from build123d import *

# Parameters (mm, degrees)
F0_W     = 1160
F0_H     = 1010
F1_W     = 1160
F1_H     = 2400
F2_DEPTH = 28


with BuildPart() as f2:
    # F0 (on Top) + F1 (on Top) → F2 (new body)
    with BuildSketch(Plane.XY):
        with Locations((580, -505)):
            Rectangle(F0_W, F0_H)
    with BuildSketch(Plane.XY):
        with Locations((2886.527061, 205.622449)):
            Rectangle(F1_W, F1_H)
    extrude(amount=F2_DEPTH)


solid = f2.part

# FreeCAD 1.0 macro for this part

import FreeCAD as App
import Part
import Sketcher
from FreeCAD import Vector
Q = App.Units.Quantity

doc = App.newDocument("Part")
body = doc.addObject("PartDesign::Body", "Body")
body.AllowCompound = True

# Sketch on XY plane
sketch1 = body.newObject("Sketcher::SketchObject", "Sketch")
sketch1.AttachmentSupport = (doc.getObject("XY_Plane"), [""])
sketch1.MapMode = "FlatFace"
sketch1.addGeometry([
    Part.LineSegment(Vector(0, 0, 0), Vector(0, -1010, 0)),  # 0
    Part.LineSegment(Vector(0, -1010, 0), Vector(1160, -1010, 0)),  # 1
    Part.LineSegment(Vector(1160, -1010, 0), Vector(1160, 0, 0)),  # 2
    Part.LineSegment(Vector(1160, 0, 0), Vector(0, 0, 0)),  # 3
    Part.LineSegment(Vector(2307, 1406, 0), Vector(2307, -994, 0)),  # 4
    Part.LineSegment(Vector(2307, -994, 0), Vector(3467, -994, 0)),  # 5
    Part.LineSegment(Vector(3467, -994, 0), Vector(3467, 1406, 0)),  # 6
    Part.LineSegment(Vector(3467, 1406, 0), Vector(2307, 1406, 0)),  # 7
], False)
sketch1.addConstraint([
    Sketcher.Constraint("Coincident", 0, 2, 1, 1),
    Sketcher.Constraint("Coincident", 1, 2, 2, 1),
    Sketcher.Constraint("Coincident", 2, 2, 3, 1),
    Sketcher.Constraint("Coincident", 3, 2, 0, 1),
    Sketcher.Constraint("Coincident", 4, 2, 5, 1),
    Sketcher.Constraint("Coincident", 5, 2, 6, 1),
    Sketcher.Constraint("Coincident", 6, 2, 7, 1),
    Sketcher.Constraint("Coincident", 7, 2, 4, 1),
    Sketcher.Constraint("Vertical", 0),
    Sketcher.Constraint("Horizontal", 1),
    Sketcher.Constraint("Vertical", 2),
    Sketcher.Constraint("Horizontal", 3),
    Sketcher.Constraint("Vertical", 4),
    Sketcher.Constraint("Horizontal", 5),
    Sketcher.Constraint("Vertical", 6),
    Sketcher.Constraint("Horizontal", 7),
    Sketcher.Constraint("Coincident", 3, 2, -1, 1),
    Sketcher.Constraint("Equal", 3, 5),
    Sketcher.Constraint("DistanceX", 1, 1, 1, 2, Q("1160 mm")),
    Sketcher.Constraint("DistanceY", 0, 2, 0, 1, Q("1010 mm")),
    Sketcher.Constraint("DistanceY", 4, 2, 4, 1, Q("2400 mm")),
    Sketcher.Constraint("DistanceX", -1, 1, 4, 2, Q("2306.527061 mm")),
    Sketcher.Constraint("DistanceY", 4, 2, -1, 1, Q("994.377551 mm")),
])
pad1 = body.newObject("PartDesign::Pad", "Pad")
pad1.Profile = sketch1
pad1.Length = 28

doc.recompute()
